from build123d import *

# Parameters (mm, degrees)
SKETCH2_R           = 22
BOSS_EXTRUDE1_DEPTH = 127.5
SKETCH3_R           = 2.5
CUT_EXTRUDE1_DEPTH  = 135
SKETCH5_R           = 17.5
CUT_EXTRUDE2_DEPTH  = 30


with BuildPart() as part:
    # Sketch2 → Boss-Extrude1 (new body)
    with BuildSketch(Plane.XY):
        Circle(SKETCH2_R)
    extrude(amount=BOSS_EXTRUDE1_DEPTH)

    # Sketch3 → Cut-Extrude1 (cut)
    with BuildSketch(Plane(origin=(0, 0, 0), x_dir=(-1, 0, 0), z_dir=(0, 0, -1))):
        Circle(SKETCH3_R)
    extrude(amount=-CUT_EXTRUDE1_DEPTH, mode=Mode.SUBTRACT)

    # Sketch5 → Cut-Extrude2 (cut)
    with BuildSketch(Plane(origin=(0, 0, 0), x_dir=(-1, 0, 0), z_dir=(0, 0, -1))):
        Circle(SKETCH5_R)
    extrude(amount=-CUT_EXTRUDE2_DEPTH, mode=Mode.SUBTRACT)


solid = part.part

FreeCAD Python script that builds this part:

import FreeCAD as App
import Part
import Sketcher

V = App.Vector
Q = App.Units.Quantity

doc = App.newDocument("Part")
body = doc.addObject("PartDesign::Body", "Body")

sketch1 = doc.addObject("Sketcher::SketchObject", "Sketch")
body.addObject(sketch1)
sketch1.AttachmentSupport = (doc.XY_Plane, [""])
sketch1.MapMode = "FlatFace"
sketch1.addGeometry(Part.Circle(V(0, 0, 0), V(0, 0, 1), 22), False)
sketch1.addConstraint(Sketcher.Constraint("Coincident", 0, 3, -1, 1))
sketch1.addConstraint(Sketcher.Constraint("Diameter", 0, Q("44 mm")))
pad1 = doc.addObject("PartDesign::Pad", "Pad")
body.addObject(pad1)
pad1.Profile = sketch1
pad1.Length = 127.5

sketch2 = doc.addObject("Sketcher::SketchObject", "Sketch001")
body.addObject(sketch2)
sketch2.AttachmentSupport = (doc.XY_Plane, [""])
sketch2.MapMode = "FlatFace"
sketch2.addGeometry(Part.Circle(V(0, 0, 0), V(0, 0, 1), 2.5), False)
sketch2.addConstraint(Sketcher.Constraint("Coincident", 0, 3, -1, 1))
sketch2.addConstraint(Sketcher.Constraint("Diameter", 0, Q("5 mm")))
pocket1 = doc.addObject("PartDesign::Pocket", "Pocket")
body.addObject(pocket1)
pocket1.Profile = sketch2
pocket1.Length = 135
pocket1.Reversed = True

sketch3 = doc.addObject("Sketcher::SketchObject", "Sketch002")
body.addObject(sketch3)
sketch3.AttachmentSupport = (doc.XY_Plane, [""])
sketch3.MapMode = "FlatFace"
sketch3.addGeometry(Part.Circle(V(0, 0, 0), V(0, 0, 1), 18), False)
sketch3.addConstraint(Sketcher.Constraint("Coincident", 0, 3, -1, 1))
sketch3.addConstraint(Sketcher.Constraint("Diameter", 0, Q("35 mm")))
pocket2 = doc.addObject("PartDesign::Pocket", "Pocket001")
body.addObject(pocket2)
pocket2.Profile = sketch3
pocket2.Length = 30
pocket2.Reversed = True

doc.recompute()
